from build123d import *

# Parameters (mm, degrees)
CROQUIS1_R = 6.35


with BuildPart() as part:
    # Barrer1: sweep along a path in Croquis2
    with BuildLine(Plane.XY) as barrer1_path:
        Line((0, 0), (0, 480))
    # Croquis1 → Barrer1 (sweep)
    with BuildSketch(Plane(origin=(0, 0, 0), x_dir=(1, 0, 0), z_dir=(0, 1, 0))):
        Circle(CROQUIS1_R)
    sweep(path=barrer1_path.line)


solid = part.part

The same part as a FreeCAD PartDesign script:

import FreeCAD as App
import Part
import Sketcher
from FreeCAD import Vector

doc = App.newDocument("Part")
body = doc.addObject("PartDesign::Body", "Body")

# Sketch on XZ plane
sketch1 = body.newObject("Sketcher::SketchObject", "Sketch")
sketch1.AttachmentSupport = (doc.getObject("XZ_Plane"), [""])
sketch1.MapMode = "FlatFace"
sketch1.addGeometry(Part.Circle(Vector(0, 0, 0), Vector(0, 0, 1), 6), False)
sketch1.addConstraint([
    Sketcher.Constraint("Coincident", 0, 3, -1, 1),
    Sketcher.Constraint("Diameter", 0, 12.7),
])

# Sketch on XY plane
sketch2 = body.newObject("Sketcher::SketchObject", "Sketch001")
sketch2.AttachmentSupport = (doc.getObject("XY_Plane"), [""])
sketch2.MapMode = "FlatFace"
sketch2.addGeometry(Part.LineSegment(Vector(0, 0, 0), Vector(0, 480, 0)), False)
sketch2.addConstraint([
    Sketcher.Constraint("Vertical", 0),
    Sketcher.Constraint("Coincident", 0, 1, -1, 1),
    Sketcher.Constraint("DistanceY", 0, 1, 0, 2, 480.0),
])
doc.recompute()

additivepipe = body.newObject("PartDesign::AdditivePipe", "AdditivePipe")
additivepipe.Profile = sketch1
additivepipe.Spine = (sketch2, ["Edge1"])

doc.recompute()
